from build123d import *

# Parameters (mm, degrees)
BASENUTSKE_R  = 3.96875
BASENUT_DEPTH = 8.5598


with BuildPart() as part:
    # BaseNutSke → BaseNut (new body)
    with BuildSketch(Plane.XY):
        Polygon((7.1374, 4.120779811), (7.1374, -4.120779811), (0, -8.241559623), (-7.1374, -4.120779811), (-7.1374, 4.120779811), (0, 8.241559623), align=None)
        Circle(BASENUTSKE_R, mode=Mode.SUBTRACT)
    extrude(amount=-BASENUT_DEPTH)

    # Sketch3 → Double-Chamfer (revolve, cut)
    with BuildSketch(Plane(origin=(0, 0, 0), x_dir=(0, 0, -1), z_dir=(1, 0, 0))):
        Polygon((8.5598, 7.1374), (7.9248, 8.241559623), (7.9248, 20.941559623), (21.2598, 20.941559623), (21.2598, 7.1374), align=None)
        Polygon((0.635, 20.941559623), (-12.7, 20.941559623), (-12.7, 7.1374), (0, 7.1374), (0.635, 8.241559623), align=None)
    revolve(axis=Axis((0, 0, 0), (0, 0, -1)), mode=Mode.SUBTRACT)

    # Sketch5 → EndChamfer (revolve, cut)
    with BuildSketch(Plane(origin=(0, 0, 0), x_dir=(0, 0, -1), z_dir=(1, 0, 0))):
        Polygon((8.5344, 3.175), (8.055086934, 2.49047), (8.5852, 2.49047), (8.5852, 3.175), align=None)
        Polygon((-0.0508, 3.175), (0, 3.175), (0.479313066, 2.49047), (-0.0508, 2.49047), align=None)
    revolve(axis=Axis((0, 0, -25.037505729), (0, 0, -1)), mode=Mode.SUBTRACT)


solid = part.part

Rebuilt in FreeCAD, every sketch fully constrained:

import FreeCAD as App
import Part
import Sketcher
from FreeCAD import Vector
Q = App.Units.Quantity

doc = App.newDocument("Part")
body = doc.addObject("PartDesign::Body", "Body")

# Sketch on XY plane
sketch1 = body.newObject("Sketcher::SketchObject", "Sketch")
sketch1.AttachmentSupport = (doc.getObject("XY_Plane"), [""])
sketch1.MapMode = "FlatFace"
sketch1.addGeometry([
    Part.LineSegment(Vector(7.1, -4.1, 0), Vector(7.1, 4.1, 0)),  # 0
    Part.LineSegment(Vector(7.1, 4.1, 0), Vector(0, 8.2, 0)),  # 1
    Part.LineSegment(Vector(0, 8.2, 0), Vector(-7.1, 4.1, 0)),  # 2
    Part.LineSegment(Vector(-7.1, 4.1, 0), Vector(-7.1, -4.1, 0)),  # 3
    Part.LineSegment(Vector(-7.1, -4.1, 0), Vector(0, -8.2, 0)),  # 4
    Part.LineSegment(Vector(0, -8.2, 0), Vector(7.1, -4.1, 0)),  # 5
    Part.Circle(Vector(0, 0, 0), Vector(0, 0, 1), 4),  # 6
], False)
sketch1.addConstraint([
    Sketcher.Constraint("Coincident", 0, 2, 1, 1),
    Sketcher.Constraint("Coincident", 1, 2, 2, 1),
    Sketcher.Constraint("Coincident", 2, 2, 3, 1),
    Sketcher.Constraint("Coincident", 3, 2, 4, 1),
    Sketcher.Constraint("Coincident", 4, 2, 5, 1),
    Sketcher.Constraint("Coincident", 5, 2, 0, 1),
    Sketcher.Constraint("Vertical", 0),
    Sketcher.Constraint("Vertical", 3),
    Sketcher.Constraint("Coincident", 6, 3, -1, 1),
    Sketcher.Constraint("Symmetric", 0, 2, 3, 2, -1, 1),
    Sketcher.Constraint("Symmetric", 1, 2, 4, 2, -1, 1),
    Sketcher.Constraint("PointOnObject", 1, 2, -2),
    Sketcher.Constraint("Parallel", 2, 5),
    Sketcher.Constraint("Horizontal", 0, 2, 2, 2),
    Sketcher.Constraint("Diameter", 6, Q("0.3125 in")),
    Sketcher.Constraint("Angle", 1, Q("150 deg")),
    Sketcher.Constraint("DistanceX", -1, 1, 0, 2, Q("0.281 in")),
    Sketcher.Constraint("DistanceY", 0, 1, 0, 2, Q("8.24156 mm")),
])
pad1 = body.newObject("PartDesign::Pad", "Pad")
pad1.Profile = sketch1
pad1.Length = Q("0.337 in")
pad1.Reversed = True

# Sketch on YZ plane
sketch2 = body.newObject("Sketcher::SketchObject", "Sketch001")
sketch2.AttachmentSupport = (doc.getObject("YZ_Plane"), [""])
sketch2.MapMode = "FlatFace"
sketch2.addGeometry([
    Part.LineSegment(Vector(8.2, -7.9, 0), Vector(7.1, -8.6, 0)),  # 0
    Part.LineSegment(Vector(7.1, -8.6, 0), Vector(7.1, -21.3, 0)),  # 1
    Part.LineSegment(Vector(7.1, -21.3, 0), Vector(20.9, -21.3, 0)),  # 2
    Part.LineSegment(Vector(20.9, -21.3, 0), Vector(20.9, -7.9, 0)),  # 3
    Part.LineSegment(Vector(20.9, -7.9, 0), Vector(8.2, -7.9, 0)),  # 4
    Part.LineSegment(Vector(20.9, -0.6, 0), Vector(20.9, 12.7, 0)),  # 5
    Part.LineSegment(Vector(20.9, 12.7, 0), Vector(7.1, 12.7, 0)),  # 6
    Part.LineSegment(Vector(7.1, 12.7, 0), Vector(7.1, 0, 0)),  # 7
    Part.LineSegment(Vector(7.1, 0, 0), Vector(8.2, -0.6, 0)),  # 8
    Part.LineSegment(Vector(8.2, -0.6, 0), Vector(20.9, -0.6, 0)),  # 9
], False)
sketch2.addConstraint([
    Sketcher.Constraint("Coincident", 0, 2, 1, 1),
    Sketcher.Constraint("Coincident", 1, 2, 2, 1),
    Sketcher.Constraint("Coincident", 2, 2, 3, 1),
    Sketcher.Constraint("Coincident", 3, 2, 4, 1),
    Sketcher.Constraint("Coincident", 4, 2, 0, 1),
    Sketcher.Constraint("Coincident", 5, 2, 6, 1),
    Sketcher.Constraint("Coincident", 6, 2, 7, 1),
    Sketcher.Constraint("Coincident", 7, 2, 8, 1),
    Sketcher.Constraint("Coincident", 8, 2, 9, 1),
    Sketcher.Constraint("Coincident", 9, 2, 5, 1),
    Sketcher.Constraint("Vertical", 1),
    Sketcher.Constraint("Horizontal", 2),
    Sketcher.Constraint("Vertical", 3),
    Sketcher.Constraint("Horizontal", 4),
    Sketcher.Constraint("Vertical", 5),
    Sketcher.Constraint("Horizontal", 6),
    Sketcher.Constraint("Vertical", 7),
    Sketcher.Constraint("Horizontal", 9),
    Sketcher.Constraint("PointOnObject", 7, 2, -1),
    Sketcher.Constraint("Vertical", 3, 2, 5, 2),
    Sketcher.Constraint("Vertical", 1, 2, 6, 2),
    Sketcher.Constraint("Vertical", 4, 2, 8, 2),
    Sketcher.Constraint("Equal", 9, 1),
    Sketcher.Constraint("Equal", 3, 5),
    Sketcher.Constraint("Equal", 1, 7),
    Sketcher.Constraint("DistanceX", 4, 2, 4, 1, Q("0.5 in")),
    Sketcher.Constraint("DistanceY", 3, 1, 3, 2, Q("0.525 in")),
    Sketcher.Constraint("DistanceX", -1, 1, 0, 2, Q("0.281 in")),
    Sketcher.Constraint("DistanceY", 0, 2, -1, 1, Q("0.337 in")),
    Sketcher.Constraint("DistanceX", 2, 1, 2, 2, Q("13.80416 mm")),
])
groove = body.newObject("PartDesign::Groove", "Groove")
groove.Profile = sketch2
groove.ReferenceAxis = (sketch2, ["V_Axis"])
groove.Angle = 360

# Sketch on YZ plane
sketch3 = body.newObject("Sketcher::SketchObject", "Sketch002")
sketch3.AttachmentSupport = (doc.getObject("YZ_Plane"), [""])
sketch3.MapMode = "FlatFace"
sketch3.addGeometry([
    Part.LineSegment(Vector(3.17, -8.53, 0), Vector(2.49, -8.06, 0)),  # 0
    Part.LineSegment(Vector(2.49, -8.06, 0), Vector(2.49, -8.59, 0)),  # 1
    Part.LineSegment(Vector(2.49, -8.59, 0), Vector(3.17, -8.59, 0)),  # 2
    Part.LineSegment(Vector(3.17, -8.59, 0), Vector(3.17, -8.53, 0)),  # 3
    Part.LineSegment(Vector(3.17, 0, 0), Vector(3.17, 0.05, 0)),  # 4
    Part.LineSegment(Vector(3.17, 0.05, 0), Vector(2.49, 0.05, 0)),  # 5
    Part.LineSegment(Vector(2.49, 0.05, 0), Vector(2.49, -0.48, 0)),  # 6
    Part.LineSegment(Vector(2.49, -0.48, 0), Vector(3.17, 0, 0)),  # 7
], False)
sketch3.addConstraint([
    Sketcher.Constraint("Coincident", 0, 2, 1, 1),
    Sketcher.Constraint("Coincident", 1, 2, 2, 1),
    Sketcher.Constraint("Coincident", 2, 2, 3, 1),
    Sketcher.Constraint("Coincident", 3, 2, 0, 1),
    Sketcher.Constraint("Coincident", 4, 2, 5, 1),
    Sketcher.Constraint("Coincident", 5, 2, 6, 1),
    Sketcher.Constraint("Coincident", 6, 2, 7, 1),
    Sketcher.Constraint("Coincident", 7, 2, 4, 1),
    Sketcher.Constraint("Vertical", 1),
    Sketcher.Constraint("Horizontal", 2),
    Sketcher.Constraint("Vertical", 3),
    Sketcher.Constraint("Vertical", 4),
    Sketcher.Constraint("Horizontal", 5),
    Sketcher.Constraint("Vertical", 6),
    Sketcher.Constraint("PointOnObject", 7, 2, -1),
    Sketcher.Constraint("Vertical", 3, 2, 4, 2),
    Sketcher.Constraint("Vertical", 1, 2, 5, 2),
    Sketcher.Constraint("Equal", 3, 4),
    Sketcher.Constraint("Equal", 1, 6),
    Sketcher.Constraint("Angle", 0, Q("145 deg")),
    Sketcher.Constraint("DistanceY", 3, 1, 3, 2, Q("0.002 in")),
    Sketcher.Constraint("DistanceY", 2, 2, 4, 2, Q("0.34 in")),
    Sketcher.Constraint("DistanceX", -1, 1, 2, 2, Q("0.125 in")),
    Sketcher.Constraint("Distance", 0, Q("0.0328999 in")),
])
groove2 = body.newObject("PartDesign::Groove", "Groove001")
groove2.Profile = sketch3
groove2.ReferenceAxis = (sketch3, ["V_Axis"])
groove2.Angle = 360

doc.recompute()
